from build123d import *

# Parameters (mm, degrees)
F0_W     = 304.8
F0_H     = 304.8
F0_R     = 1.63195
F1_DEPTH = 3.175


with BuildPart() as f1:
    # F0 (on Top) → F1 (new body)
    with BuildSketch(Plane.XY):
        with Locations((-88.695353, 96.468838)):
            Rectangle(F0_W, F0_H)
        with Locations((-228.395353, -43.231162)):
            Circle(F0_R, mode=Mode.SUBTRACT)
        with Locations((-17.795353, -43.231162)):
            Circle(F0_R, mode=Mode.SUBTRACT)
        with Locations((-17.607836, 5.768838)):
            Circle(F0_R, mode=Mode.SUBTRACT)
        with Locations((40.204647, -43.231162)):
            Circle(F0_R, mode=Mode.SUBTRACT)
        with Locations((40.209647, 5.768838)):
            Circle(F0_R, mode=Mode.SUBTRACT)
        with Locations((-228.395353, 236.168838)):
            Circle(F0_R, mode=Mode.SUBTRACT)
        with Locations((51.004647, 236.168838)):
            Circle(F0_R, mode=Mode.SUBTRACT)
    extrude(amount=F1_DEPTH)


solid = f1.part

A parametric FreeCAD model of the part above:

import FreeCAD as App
import Part
import Sketcher
Q = App.Units.Quantity


def add_polygon(sketch, points):
    """Adds a closed chain of lines whose ends are joined by coincident constraints."""
    first, n = sketch.GeometryCount, len(points)
    for a, b in zip(points, points[1:] + points[:1]):
        sketch.addGeometry(Part.LineSegment(App.Vector(*a, 0), App.Vector(*b, 0)), False)
    for i in range(n):
        sketch.addConstraint(Sketcher.Constraint("Coincident", first + i, 2, first + (i + 1) % n, 1))

doc = App.newDocument("Part")
body = doc.addObject("PartDesign::Body", "Body")

# Sketch on XY plane
sketch1 = body.newObject("Sketcher::SketchObject", "Sketch")
sketch1.AttachmentSupport = (doc.getObject("XY_Plane"), [""])
sketch1.MapMode = "FlatFace"
add_polygon(sketch1, [(-241.1, 248.9), (-241.1, -55.9), (63.7, -55.9), (63.7, 248.9)])  # lines 0-3
sketch1.addGeometry(Part.Circle(App.Vector(-228.4, -43.2, 0), App.Vector(0, 0, 1), 1.6), False)  # 4
sketch1.addGeometry(Part.Circle(App.Vector(-17.8, -43.2, 0), App.Vector(0, 0, 1), 1.6), False)  # 5
sketch1.addGeometry(Part.Circle(App.Vector(40.2, -43.2, 0), App.Vector(0, 0, 1), 1.6), False)  # 6
sketch1.addGeometry(Part.Circle(App.Vector(-17.6, 5.8, 0), App.Vector(0, 0, 1), 1.6), False)  # 7
sketch1.addGeometry(Part.Circle(App.Vector(40.2, 5.8, 0), App.Vector(0, 0, 1), 1.6), False)  # 8
sketch1.addGeometry(Part.Circle(App.Vector(-228.4, 236.2, 0), App.Vector(0, 0, 1), 1.6), False)  # 9
sketch1.addGeometry(Part.Circle(App.Vector(51, 236.2, 0), App.Vector(0, 0, 1), 1.6), False)  # 10
sketch1.addConstraint([
    Sketcher.Constraint("Vertical", 0),
    Sketcher.Constraint("Horizontal", 1),
    Sketcher.Constraint("Vertical", 2),
    Sketcher.Constraint("Horizontal", 3),
    Sketcher.Constraint("Equal", 4, 5),
    Sketcher.Constraint("Equal", 5, 6),
    Sketcher.Constraint("Equal", 6, 7),
    Sketcher.Constraint("Equal", 7, 8),
    Sketcher.Constraint("Equal", 8, 9),
    Sketcher.Constraint("Equal", 9, 10),
    Sketcher.Constraint("Horizontal", 4, 3, 5, 3),
    Sketcher.Constraint("Horizontal", 5, 3, 6, 3),
    Sketcher.Constraint("Horizontal", 7, 3, 8, 3),
    Sketcher.Constraint("Horizontal", 9, 3, 10, 3),
    Sketcher.Constraint("Vertical", 4, 3, 9, 3),
    Sketcher.Constraint("Equal", 3, 0),
    Sketcher.Constraint("DistanceX", 1, 1, 1, 2, Q("12 in")),
    Sketcher.Constraint("DistanceY", 4, 3, 9, 3, Q("11 in")),
    Sketcher.Constraint("DistanceX", 9, 3, 10, 3, Q("11 in")),
    Sketcher.Constraint("Diameter", 4, Q("0.1285 in")),
    Sketcher.Constraint("DistanceX", 0, 2, 4, 3, Q("0.5 in")),
    Sketcher.Constraint("DistanceY", 0, 2, 4, 3, Q("0.5 in")),
    Sketcher.Constraint("DistanceX", 4, 3, 8, 3, Q("10.575 in")),
    Sketcher.Constraint("DistanceX", 4, 3, 5, 3, Q("210.6 mm")),
    Sketcher.Constraint("DistanceX", 5, 3, 6, 3, Q("58 mm")),
    Sketcher.Constraint("DistanceY", 5, 3, 7, 3, Q("49 mm")),
    Sketcher.Constraint("DistanceY", 4, 3, -1, 1, Q("43.231162 mm")),
    Sketcher.Constraint("DistanceX", 4, 3, -1, 1, Q("228.395353 mm")),
    Sketcher.Constraint("DistanceX", 7, 3, -1, 1, Q("17.607836 mm")),
])
pad1 = body.newObject("PartDesign::Pad", "Pad")
pad1.Profile = sketch1
pad1.Length = Q("0.125 in")

doc.recompute()
